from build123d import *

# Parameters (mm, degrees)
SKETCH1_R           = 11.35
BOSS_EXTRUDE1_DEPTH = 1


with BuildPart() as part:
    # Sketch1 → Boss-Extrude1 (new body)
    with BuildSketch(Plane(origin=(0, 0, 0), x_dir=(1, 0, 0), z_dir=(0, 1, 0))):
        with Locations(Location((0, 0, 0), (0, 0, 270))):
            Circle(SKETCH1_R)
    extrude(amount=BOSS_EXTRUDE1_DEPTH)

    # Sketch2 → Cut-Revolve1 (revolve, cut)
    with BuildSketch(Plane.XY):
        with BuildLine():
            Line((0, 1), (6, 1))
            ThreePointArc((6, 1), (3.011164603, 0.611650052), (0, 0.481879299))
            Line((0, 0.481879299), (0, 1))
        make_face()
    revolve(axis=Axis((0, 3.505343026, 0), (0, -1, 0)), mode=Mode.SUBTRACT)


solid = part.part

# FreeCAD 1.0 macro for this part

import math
import FreeCAD as App
import Part
import Sketcher
from FreeCAD import Vector

doc = App.newDocument("Part")
body = doc.addObject("PartDesign::Body", "Body")

# Sketch on XZ plane
sketch1 = body.newObject("Sketcher::SketchObject", "Sketch")
sketch1.AttachmentSupport = (doc.getObject("XZ_Plane"), [""])
sketch1.MapMode = "FlatFace"
sketch1.addGeometry(Part.Circle(Vector(0, 0, 0), Vector(0, 0, 1), 11), False)
sketch1.addConstraint(Sketcher.Constraint("Coincident", 0, 3, -1, 1))
sketch1.addConstraint(Sketcher.Constraint("Diameter", 0, 22.7))
pad1 = body.newObject("PartDesign::Pad", "Pad")
pad1.Profile = sketch1
pad1.Length = 1
pad1.Reversed = True

# Sketch on XY plane
sketch2 = body.newObject("Sketcher::SketchObject", "Sketch001")
sketch2.AttachmentSupport = (doc.getObject("XY_Plane"), [""])
sketch2.MapMode = "FlatFace"
sketch2.addGeometry(Part.LineSegment(Vector(6, 1, 0), Vector(0, 1, 0)), False)
sketch2.addGeometry(Part.LineSegment(Vector(0, 1, 0), Vector(0, 0.5, 0)), False)
sketch2.addGeometry(Part.ArcOfCircle(Part.Circle(Vector(0, 35.5, 0), Vector(0, 0, 1), 35), math.radians(-90), math.radians(-80.13)), False)
sketch2.addConstraint(Sketcher.Constraint("Coincident", 0, 2, 1, 1))
sketch2.addConstraint(Sketcher.Constraint("Coincident", 1, 2, 2, 1))
sketch2.addConstraint(Sketcher.Constraint("Coincident", 2, 2, 0, 1))
sketch2.addConstraint(Sketcher.Constraint("Horizontal", 0))
sketch2.addConstraint(Sketcher.Constraint("Vertical", 1))
sketch2.addConstraint(Sketcher.Constraint("PointOnObject", 2, 3, -2))
sketch2.addConstraint(Sketcher.Constraint("PointOnObject", 0, 2, -2))
sketch2.addConstraint(Sketcher.Constraint("Radius", 2, 35.0))
sketch2.addConstraint(Sketcher.Constraint("DistanceX", 0, 2, 0, 1, 6.0))
sketch2.addConstraint(Sketcher.Constraint("DistanceY", -1, 1, 0, 2, 1.0))
groove = body.newObject("PartDesign::Groove", "Groove")
groove.Profile = sketch2
groove.ReferenceAxis = (sketch2, ["V_Axis"])
groove.Angle = 360

doc.recompute()
